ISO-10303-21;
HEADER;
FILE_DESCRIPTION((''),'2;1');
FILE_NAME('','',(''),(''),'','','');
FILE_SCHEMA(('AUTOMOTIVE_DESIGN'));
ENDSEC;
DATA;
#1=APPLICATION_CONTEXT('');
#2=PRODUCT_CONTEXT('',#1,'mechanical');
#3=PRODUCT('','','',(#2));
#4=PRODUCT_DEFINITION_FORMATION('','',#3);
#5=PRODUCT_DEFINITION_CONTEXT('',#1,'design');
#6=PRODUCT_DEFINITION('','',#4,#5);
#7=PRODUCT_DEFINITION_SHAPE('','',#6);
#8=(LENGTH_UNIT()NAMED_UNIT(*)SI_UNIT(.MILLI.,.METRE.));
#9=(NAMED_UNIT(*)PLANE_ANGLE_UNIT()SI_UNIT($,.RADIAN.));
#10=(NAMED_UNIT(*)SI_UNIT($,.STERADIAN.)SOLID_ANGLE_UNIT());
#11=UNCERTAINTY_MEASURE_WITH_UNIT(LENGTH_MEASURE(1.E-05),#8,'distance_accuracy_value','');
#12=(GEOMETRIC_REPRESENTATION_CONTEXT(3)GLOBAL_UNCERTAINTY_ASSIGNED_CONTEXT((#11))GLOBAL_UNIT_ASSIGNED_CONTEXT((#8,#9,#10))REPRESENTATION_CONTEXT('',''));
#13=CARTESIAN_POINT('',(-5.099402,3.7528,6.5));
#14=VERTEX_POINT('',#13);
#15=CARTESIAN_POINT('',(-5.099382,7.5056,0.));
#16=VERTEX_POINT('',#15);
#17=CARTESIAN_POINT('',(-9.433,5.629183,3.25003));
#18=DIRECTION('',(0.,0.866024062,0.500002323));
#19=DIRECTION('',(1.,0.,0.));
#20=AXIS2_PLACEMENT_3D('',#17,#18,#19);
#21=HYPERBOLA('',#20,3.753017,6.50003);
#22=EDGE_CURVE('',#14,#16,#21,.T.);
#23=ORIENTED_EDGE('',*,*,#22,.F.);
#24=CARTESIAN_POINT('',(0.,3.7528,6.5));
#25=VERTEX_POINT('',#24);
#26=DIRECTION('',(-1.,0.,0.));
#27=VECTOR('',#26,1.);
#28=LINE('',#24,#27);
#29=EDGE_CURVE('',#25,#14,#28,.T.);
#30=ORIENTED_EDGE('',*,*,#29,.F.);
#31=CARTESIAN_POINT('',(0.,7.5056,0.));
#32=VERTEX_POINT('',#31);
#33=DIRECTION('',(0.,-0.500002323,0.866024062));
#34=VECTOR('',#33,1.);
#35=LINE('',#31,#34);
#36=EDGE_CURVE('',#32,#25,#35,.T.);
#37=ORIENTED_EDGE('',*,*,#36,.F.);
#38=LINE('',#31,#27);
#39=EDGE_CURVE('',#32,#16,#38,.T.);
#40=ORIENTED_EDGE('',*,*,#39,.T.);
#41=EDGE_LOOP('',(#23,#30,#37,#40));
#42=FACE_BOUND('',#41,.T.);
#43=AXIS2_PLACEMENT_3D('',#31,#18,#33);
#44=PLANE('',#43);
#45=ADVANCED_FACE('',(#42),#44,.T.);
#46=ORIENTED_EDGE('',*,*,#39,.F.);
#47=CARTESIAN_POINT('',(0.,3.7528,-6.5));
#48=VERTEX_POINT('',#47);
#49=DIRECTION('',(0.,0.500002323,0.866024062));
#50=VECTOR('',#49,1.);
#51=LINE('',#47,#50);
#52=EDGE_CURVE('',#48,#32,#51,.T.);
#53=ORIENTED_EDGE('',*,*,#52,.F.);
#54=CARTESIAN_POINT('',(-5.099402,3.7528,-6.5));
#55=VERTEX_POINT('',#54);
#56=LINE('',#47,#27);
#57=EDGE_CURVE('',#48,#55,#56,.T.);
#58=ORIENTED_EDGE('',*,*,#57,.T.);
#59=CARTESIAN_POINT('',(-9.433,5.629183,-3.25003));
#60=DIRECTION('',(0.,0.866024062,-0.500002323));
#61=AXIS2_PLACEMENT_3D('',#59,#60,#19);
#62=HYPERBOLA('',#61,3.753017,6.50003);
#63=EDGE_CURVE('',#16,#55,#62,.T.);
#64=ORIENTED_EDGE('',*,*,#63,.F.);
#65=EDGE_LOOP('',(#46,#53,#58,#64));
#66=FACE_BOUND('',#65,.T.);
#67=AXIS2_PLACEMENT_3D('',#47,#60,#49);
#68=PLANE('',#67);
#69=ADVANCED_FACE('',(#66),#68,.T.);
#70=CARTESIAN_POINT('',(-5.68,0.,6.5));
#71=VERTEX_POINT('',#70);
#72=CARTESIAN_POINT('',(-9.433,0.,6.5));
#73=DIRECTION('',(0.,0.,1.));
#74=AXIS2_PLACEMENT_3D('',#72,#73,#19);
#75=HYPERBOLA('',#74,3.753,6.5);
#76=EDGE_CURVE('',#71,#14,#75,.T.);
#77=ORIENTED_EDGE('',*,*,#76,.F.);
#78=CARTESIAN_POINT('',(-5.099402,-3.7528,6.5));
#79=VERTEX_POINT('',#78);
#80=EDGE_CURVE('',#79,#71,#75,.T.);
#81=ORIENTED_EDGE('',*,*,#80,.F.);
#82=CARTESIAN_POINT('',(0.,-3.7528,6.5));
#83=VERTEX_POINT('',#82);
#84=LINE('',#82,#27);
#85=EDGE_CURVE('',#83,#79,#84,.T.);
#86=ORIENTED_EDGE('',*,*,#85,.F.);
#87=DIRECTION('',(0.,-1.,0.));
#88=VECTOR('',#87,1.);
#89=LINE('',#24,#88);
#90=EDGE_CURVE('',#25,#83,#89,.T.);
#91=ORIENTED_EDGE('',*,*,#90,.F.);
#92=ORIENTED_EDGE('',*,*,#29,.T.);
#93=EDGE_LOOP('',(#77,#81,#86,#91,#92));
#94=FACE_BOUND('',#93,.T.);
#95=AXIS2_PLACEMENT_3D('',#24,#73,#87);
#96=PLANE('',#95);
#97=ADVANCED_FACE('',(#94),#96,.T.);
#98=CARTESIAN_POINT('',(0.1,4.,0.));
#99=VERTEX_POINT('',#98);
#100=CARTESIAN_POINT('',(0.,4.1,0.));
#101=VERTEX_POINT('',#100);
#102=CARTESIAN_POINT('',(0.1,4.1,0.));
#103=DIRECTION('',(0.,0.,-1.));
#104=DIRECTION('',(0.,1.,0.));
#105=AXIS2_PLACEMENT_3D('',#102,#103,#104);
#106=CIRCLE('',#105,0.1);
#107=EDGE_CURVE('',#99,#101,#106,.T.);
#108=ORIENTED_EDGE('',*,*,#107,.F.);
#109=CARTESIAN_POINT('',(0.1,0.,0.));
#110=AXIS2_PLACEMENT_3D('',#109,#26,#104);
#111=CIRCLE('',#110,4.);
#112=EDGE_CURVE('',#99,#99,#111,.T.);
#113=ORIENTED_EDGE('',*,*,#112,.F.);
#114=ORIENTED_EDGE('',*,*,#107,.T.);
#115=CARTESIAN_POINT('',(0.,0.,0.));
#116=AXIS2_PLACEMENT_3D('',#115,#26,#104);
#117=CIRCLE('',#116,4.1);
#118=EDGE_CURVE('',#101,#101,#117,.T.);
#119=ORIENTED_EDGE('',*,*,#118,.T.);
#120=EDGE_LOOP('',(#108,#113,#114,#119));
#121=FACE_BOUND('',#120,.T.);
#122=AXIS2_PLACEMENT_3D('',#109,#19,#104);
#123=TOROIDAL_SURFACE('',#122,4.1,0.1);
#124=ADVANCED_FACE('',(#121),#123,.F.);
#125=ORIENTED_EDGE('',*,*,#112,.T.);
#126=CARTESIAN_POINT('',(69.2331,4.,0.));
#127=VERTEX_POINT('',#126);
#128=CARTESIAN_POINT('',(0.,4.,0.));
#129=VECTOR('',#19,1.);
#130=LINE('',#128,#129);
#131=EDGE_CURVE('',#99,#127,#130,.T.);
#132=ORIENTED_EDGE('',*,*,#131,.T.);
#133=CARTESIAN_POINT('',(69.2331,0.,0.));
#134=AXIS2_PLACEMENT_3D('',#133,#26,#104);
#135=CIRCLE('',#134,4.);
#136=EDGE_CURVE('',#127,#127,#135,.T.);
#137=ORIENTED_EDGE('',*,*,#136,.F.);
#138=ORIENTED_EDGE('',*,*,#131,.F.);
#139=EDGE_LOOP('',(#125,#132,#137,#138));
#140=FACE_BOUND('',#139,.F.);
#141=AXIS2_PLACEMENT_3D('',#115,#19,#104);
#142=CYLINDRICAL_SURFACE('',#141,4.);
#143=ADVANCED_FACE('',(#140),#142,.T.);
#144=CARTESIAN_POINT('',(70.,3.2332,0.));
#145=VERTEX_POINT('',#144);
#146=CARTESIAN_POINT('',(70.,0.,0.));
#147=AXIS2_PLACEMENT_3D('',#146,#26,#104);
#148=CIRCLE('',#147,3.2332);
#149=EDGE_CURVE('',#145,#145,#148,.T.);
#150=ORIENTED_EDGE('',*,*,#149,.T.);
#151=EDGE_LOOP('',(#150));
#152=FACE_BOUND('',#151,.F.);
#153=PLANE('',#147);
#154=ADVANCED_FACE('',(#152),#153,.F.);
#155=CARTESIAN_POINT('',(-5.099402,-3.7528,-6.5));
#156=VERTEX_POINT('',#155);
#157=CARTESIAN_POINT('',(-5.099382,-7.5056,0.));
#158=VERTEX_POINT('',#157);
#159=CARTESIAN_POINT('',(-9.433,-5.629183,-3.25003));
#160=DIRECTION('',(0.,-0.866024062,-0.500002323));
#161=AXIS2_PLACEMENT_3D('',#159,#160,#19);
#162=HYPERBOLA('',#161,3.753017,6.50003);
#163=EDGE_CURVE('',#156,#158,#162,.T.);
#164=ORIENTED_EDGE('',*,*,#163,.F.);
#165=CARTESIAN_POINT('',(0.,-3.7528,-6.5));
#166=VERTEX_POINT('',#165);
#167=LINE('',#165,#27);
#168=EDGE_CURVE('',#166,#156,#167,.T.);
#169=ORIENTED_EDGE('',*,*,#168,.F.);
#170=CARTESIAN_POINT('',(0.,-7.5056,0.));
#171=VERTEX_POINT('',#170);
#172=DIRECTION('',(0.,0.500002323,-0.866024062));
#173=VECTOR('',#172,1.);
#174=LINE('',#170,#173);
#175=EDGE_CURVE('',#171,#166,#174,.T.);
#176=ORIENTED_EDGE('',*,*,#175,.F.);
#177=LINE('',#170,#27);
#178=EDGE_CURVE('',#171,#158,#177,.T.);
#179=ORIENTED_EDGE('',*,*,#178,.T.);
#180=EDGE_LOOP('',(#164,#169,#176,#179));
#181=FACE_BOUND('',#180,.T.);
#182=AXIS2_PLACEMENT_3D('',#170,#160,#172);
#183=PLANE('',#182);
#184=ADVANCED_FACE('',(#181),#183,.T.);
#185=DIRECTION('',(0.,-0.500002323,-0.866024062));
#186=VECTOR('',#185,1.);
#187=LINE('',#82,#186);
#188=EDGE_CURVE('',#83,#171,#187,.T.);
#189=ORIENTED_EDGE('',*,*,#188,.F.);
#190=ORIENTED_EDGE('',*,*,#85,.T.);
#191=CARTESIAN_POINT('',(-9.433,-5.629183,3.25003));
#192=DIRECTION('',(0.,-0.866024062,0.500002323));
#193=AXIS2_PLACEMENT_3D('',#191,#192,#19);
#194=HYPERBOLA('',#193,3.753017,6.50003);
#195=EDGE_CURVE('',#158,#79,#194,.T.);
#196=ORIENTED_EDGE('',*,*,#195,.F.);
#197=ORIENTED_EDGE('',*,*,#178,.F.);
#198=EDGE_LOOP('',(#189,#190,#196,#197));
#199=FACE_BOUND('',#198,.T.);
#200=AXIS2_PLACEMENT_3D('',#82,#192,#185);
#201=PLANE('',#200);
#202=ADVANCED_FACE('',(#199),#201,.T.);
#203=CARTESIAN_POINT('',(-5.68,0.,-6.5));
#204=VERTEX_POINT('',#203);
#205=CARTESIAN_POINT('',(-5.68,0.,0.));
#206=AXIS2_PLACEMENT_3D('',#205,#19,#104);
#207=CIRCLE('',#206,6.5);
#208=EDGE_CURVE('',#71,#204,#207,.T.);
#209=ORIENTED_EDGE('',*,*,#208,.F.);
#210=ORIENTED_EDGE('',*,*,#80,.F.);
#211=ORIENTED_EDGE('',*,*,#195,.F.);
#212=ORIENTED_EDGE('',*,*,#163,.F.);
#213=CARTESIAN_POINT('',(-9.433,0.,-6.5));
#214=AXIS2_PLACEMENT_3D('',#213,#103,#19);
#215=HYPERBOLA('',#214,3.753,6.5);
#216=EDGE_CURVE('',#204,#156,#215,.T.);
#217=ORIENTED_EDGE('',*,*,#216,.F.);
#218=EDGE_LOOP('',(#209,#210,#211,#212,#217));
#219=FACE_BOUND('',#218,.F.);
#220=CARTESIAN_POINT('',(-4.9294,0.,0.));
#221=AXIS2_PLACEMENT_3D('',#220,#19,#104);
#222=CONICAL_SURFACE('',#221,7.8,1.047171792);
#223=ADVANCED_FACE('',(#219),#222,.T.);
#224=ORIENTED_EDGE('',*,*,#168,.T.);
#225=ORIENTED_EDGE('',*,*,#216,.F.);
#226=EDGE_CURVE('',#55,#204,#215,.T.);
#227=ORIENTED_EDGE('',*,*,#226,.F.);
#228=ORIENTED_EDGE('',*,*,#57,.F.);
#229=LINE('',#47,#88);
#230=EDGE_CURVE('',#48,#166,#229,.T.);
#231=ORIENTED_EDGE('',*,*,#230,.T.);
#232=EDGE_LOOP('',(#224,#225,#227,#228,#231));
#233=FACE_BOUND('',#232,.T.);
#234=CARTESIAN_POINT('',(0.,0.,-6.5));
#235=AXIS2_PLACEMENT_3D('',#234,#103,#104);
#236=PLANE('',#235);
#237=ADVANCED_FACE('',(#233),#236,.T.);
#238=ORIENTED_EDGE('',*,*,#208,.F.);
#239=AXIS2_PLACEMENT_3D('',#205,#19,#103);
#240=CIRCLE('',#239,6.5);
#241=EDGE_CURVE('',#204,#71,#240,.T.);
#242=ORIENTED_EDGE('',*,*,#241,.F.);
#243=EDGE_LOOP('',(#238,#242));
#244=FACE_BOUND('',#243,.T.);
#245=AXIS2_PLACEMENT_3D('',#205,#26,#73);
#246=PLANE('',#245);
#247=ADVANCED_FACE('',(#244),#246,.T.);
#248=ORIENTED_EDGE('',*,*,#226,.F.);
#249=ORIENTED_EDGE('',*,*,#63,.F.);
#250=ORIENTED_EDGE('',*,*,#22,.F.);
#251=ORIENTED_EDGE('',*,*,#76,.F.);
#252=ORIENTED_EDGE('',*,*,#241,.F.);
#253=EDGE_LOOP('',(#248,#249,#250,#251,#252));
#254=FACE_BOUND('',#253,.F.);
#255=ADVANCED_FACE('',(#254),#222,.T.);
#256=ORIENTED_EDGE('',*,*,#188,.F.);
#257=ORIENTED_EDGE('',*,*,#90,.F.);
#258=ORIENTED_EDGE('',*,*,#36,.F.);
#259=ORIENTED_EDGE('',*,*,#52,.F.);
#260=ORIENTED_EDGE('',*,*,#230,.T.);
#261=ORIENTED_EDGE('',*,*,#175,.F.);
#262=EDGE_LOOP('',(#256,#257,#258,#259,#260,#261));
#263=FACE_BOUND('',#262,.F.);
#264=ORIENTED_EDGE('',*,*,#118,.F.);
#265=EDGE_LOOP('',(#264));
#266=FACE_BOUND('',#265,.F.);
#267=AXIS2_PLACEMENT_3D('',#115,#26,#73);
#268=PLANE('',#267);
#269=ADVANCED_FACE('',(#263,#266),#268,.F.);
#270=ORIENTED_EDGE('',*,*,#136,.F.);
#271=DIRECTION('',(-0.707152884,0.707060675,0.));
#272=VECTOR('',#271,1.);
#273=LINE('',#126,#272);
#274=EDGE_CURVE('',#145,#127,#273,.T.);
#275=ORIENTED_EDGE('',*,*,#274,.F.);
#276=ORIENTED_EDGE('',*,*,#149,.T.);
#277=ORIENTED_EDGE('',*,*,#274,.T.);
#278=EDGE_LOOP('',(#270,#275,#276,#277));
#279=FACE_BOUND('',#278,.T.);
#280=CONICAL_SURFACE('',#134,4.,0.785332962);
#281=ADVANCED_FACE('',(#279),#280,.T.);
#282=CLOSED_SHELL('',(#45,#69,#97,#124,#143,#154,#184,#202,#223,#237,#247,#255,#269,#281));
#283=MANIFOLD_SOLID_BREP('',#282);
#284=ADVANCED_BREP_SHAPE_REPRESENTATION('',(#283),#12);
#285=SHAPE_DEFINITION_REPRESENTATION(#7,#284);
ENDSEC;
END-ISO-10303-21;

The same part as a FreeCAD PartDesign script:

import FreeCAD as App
import Part
import Sketcher
from FreeCAD import Vector
Q = App.Units.Quantity


def edges_at(feature, points):
    """Names of the edges that pass closest to the given points."""
    edges = feature.Shape.Edges
    near = lambda p: min(range(len(edges)), key=lambda i: edges[i].distToShape(Part.Vertex(*p))[0])
    return sorted({f"Edge{near(p) + 1}" for p in points})


def add_polygon(sketch, points):
    """Adds a closed chain of lines whose ends are joined by coincident constraints."""
    first, n = sketch.GeometryCount, len(points)
    for a, b in zip(points, points[1:] + points[:1]):
        sketch.addGeometry(Part.LineSegment(App.Vector(*a, 0), App.Vector(*b, 0)), False)
    for i in range(n):
        sketch.addConstraint(Sketcher.Constraint("Coincident", first + i, 2, first + (i + 1) % n, 1))

doc = App.newDocument("Part")
params = doc.addObject("Spreadsheet::Sheet", "Params")
for row, (alias, value) in enumerate([
    ("sketch1_width", "70 mm"),
    ("sketch1_height", "4 mm"),
    ("revolution_angle", "360 deg"),
    ("pad1_length", "5.68 mm"),
    ("sketch3_height", "1.3 mm"),
    ("groove_angle", "360 deg"),
    ("chamfer_size", "0.7668 mm"),
    ("chamfer_size2", "0.7669 mm"),
    ("fillet_radius", "0.1 mm"),
], start=1):
    params.set(f"A{row}", alias)
    params.set(f"B{row}", "=" + value)
    params.setAlias(f"B{row}", alias)

body = doc.addObject("PartDesign::Body", "Body")

# Sketch on XY plane
sketch1 = body.newObject("Sketcher::SketchObject", "Sketch")
sketch1.AttachmentSupport = (doc.getObject("XY_Plane"), [""])
sketch1.MapMode = "FlatFace"
add_polygon(sketch1, [(70, 4), (0, 4), (0, 0), (70, 0)])  # lines 0-3
sketch1.addConstraint(Sketcher.Constraint("Horizontal", 0))
sketch1.addConstraint(Sketcher.Constraint("Vertical", 1))
sketch1.addConstraint(Sketcher.Constraint("Horizontal", 2))
sketch1.addConstraint(Sketcher.Constraint("Vertical", 3))
sketch1.addConstraint(Sketcher.Constraint("Coincident", 1, 2, -1, 1))
sketch1.addConstraint(Sketcher.Constraint("DistanceX", 0, 2, 0, 1, Q("70 mm")))
sketch1.addConstraint(Sketcher.Constraint("DistanceY", 1, 2, 1, 1, Q("4 mm")))
sketch1.setExpression("Constraints[9]", "Params.sketch1_width")
sketch1.setExpression("Constraints[10]", "Params.sketch1_height")
revolution = body.newObject("PartDesign::Revolution", "Revolution")
revolution.Profile = sketch1
revolution.ReferenceAxis = (sketch1, ["H_Axis"])
revolution.setExpression("Angle", "Params.revolution_angle")

# Sketch on YZ plane
sketch2 = body.newObject("Sketcher::SketchObject", "Sketch001")
sketch2.AttachmentSupport = (doc.getObject("YZ_Plane"), [""])
sketch2.MapMode = "FlatFace"
add_polygon(sketch2, [(4, -6), (-4, -6), (-8, 0), (-4, 6), (4, 6), (8, 0)])  # lines 0-5
sketch2.addConstraint(Sketcher.Constraint("Horizontal", 0))
sketch2.addConstraint(Sketcher.Constraint("Horizontal", 3))
sketch2.addConstraint(Sketcher.Constraint("Symmetric", 0, 2, 3, 2, -1, 1))
sketch2.addConstraint(Sketcher.Constraint("Symmetric", 1, 2, 4, 2, -1, 1))
sketch2.addConstraint(Sketcher.Constraint("PointOnObject", 1, 2, -1))
sketch2.addConstraint(Sketcher.Constraint("Parallel", 2, 5))
sketch2.addConstraint(Sketcher.Constraint("Vertical", 0, 2, 2, 2))
sketch2.addConstraint(Sketcher.Constraint("DistanceY", 0, 2, 2, 2, Q("13 mm")))
sketch2.addConstraint(Sketcher.Constraint("Angle", 1, Q("120.0002 deg")))
sketch2.addConstraint(Sketcher.Constraint("DistanceX", 0, 2, 0, 1, Q("7.5056 mm")))
pad1 = body.newObject("PartDesign::Pad", "Pad")
pad1.Profile = sketch2
pad1.setExpression("Length", "Params.pad1_length")
pad1.Reversed = True

# Sketch on XY plane
sketch3 = body.newObject("Sketcher::SketchObject", "Sketch002")
sketch3.AttachmentSupport = (doc.getObject("XY_Plane"), [""])
sketch3.MapMode = "FlatFace"
add_polygon(sketch3, [(-5.7, 6.5), (-4.9, 7.8), (-5.7, 7.8)])  # lines 0-2
sketch3.addConstraint(Sketcher.Constraint("Horizontal", 1))
sketch3.addConstraint(Sketcher.Constraint("Vertical", 2))
sketch3.addConstraint(Sketcher.Constraint("DistanceX", 1, 2, -1, 1, Q("5.68 mm")))
sketch3.addConstraint(Sketcher.Constraint("DistanceY", 2, 2, 2, 1, Q("1.3 mm")))
sketch3.addConstraint(Sketcher.Constraint("DistanceY", -1, 1, 0, 2, Q("7.8 mm")))
sketch3.addConstraint(Sketcher.Constraint("DistanceX", 1, 2, 1, 1, Q("0.7506 mm")))
sketch3.setExpression("Constraints[6]", "Params.sketch3_height")
groove = body.newObject("PartDesign::Groove", "Groove")
groove.Profile = sketch3
groove.ReferenceAxis = (sketch3, ["H_Axis"])
groove.setExpression("Angle", "Params.groove_angle")
doc.recompute()

chamfer = body.newObject("PartDesign::Chamfer", "Chamfer")
chamfer.Base = (groove, edges_at(groove, [(70, -4, 0)]))
chamfer.ChamferType = "Two distances"
chamfer.setExpression("Size", "Params.chamfer_size")
chamfer.setExpression("Size2", "Params.chamfer_size2")
doc.recompute()

fillet = body.newObject("PartDesign::Fillet", "Fillet")
fillet.Base = (chamfer, edges_at(chamfer, [(0, -4, 0)]))
fillet.setExpression("Radius", "Params.fillet_radius")

doc.recompute()
